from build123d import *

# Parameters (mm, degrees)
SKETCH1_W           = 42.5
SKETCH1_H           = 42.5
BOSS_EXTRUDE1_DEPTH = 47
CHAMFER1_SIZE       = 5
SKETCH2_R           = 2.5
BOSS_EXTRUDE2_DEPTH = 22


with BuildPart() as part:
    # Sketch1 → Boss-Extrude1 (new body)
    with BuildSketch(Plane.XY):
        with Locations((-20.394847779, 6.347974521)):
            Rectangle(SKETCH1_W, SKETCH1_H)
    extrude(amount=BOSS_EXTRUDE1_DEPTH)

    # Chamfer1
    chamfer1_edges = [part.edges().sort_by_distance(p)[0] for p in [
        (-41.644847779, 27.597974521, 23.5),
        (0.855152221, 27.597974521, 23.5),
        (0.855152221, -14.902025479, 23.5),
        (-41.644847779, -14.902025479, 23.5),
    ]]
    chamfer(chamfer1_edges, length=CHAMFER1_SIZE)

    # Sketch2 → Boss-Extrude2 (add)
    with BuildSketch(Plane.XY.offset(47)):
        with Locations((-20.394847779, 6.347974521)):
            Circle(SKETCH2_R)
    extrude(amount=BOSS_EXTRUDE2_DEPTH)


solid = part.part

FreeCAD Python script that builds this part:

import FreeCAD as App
import Part
import Sketcher
from FreeCAD import Vector


def edges_at(feature, points):
    """Names of the edges that pass closest to the given points."""
    edges = feature.Shape.Edges
    near = lambda p: min(range(len(edges)), key=lambda i: edges[i].distToShape(Part.Vertex(*p))[0])
    return sorted({f"Edge{near(p) + 1}" for p in points})


def add_polygon(sketch, points):
    """Adds a closed chain of lines whose ends are joined by coincident constraints."""
    first, n = sketch.GeometryCount, len(points)
    for a, b in zip(points, points[1:] + points[:1]):
        sketch.addGeometry(Part.LineSegment(App.Vector(*a, 0), App.Vector(*b, 0)), False)
    for i in range(n):
        sketch.addConstraint(Sketcher.Constraint("Coincident", first + i, 2, first + (i + 1) % n, 1))

doc = App.newDocument("Part")
params = doc.addObject("Spreadsheet::Sheet", "Params")
for row, (alias, value) in enumerate([
    ("sketch1_width", "42.5 mm"),
    ("pad1_length", "47 mm"),
    ("chamfer_size", "5 mm"),
    ("sketch2_diameter", "5 mm"),
    ("pad2_length", "22 mm"),
], start=1):
    params.set(f"A{row}", alias)
    params.set(f"B{row}", "=" + value)
    params.setAlias(f"B{row}", alias)

body = doc.addObject("PartDesign::Body", "Body")

sketch1 = doc.addObject("Sketcher::SketchObject", "Sketch")
body.addObject(sketch1)
sketch1.AttachmentSupport = (doc.XY_Plane, [""])
sketch1.MapMode = "FlatFace"
add_polygon(sketch1, [(-42, 28), (-42, -15), (1, -15), (1, 28)])
sketch1.addConstraint(Sketcher.Constraint("Vertical", 0))
sketch1.addConstraint(Sketcher.Constraint("Horizontal", 1))
sketch1.addConstraint(Sketcher.Constraint("Vertical", 2))
sketch1.addConstraint(Sketcher.Constraint("Horizontal", 3))
sketch1.addConstraint(Sketcher.Constraint("Equal", 3, 0))
sketch1.addConstraint(Sketcher.Constraint("DistanceX", 1, 1, 1, 2, 42.5))
sketch1.addConstraint(Sketcher.Constraint("DistanceX", 0, 2, -1, 1, 41.644848))
sketch1.addConstraint(Sketcher.Constraint("DistanceY", 0, 2, -1, 1, 14.902025))
sketch1.setExpression("Constraints[9]", "Params.sketch1_width")
pad1 = doc.addObject("PartDesign::Pad", "Pad")
body.addObject(pad1)
pad1.Profile = sketch1
pad1.setExpression("Length", "Params.pad1_length")
doc.recompute()

chamfer = doc.addObject("PartDesign::Chamfer", "Chamfer")
body.addObject(chamfer)
chamfer.Base = (pad1, edges_at(pad1, [
    (-41.645, 27.598, 23.5),
    (0.855, 27.598, 23.5),
    (0.855, -14.902, 23.5),
    (-41.645, -14.902, 23.5),
]))
chamfer.setExpression("Size", "Params.chamfer_size")

sketch2 = doc.addObject("Sketcher::SketchObject", "Sketch001")
body.addObject(sketch2)
sketch2.AttachmentSupport = (doc.XY_Plane, [""])
sketch2.MapMode = "FlatFace"
sketch2.AttachmentOffset = App.Placement(Vector(0, 0, 47), App.Rotation())
sketch2.addGeometry(Part.Circle(Vector(-20.4, 6.3, 0), Vector(0, 0, 1), 2.5), False)
sketch2.addConstraint(Sketcher.Constraint("Diameter", 0, 5.0))
sketch2.addConstraint(Sketcher.Constraint("DistanceX", 0, 3, -1, 1, 20.394848))
sketch2.addConstraint(Sketcher.Constraint("DistanceY", -1, 1, 0, 3, 6.347975))
sketch2.setExpression("Constraints[0]", "Params.sketch2_diameter")
pad2 = doc.addObject("PartDesign::Pad", "Pad001")
body.addObject(pad2)
pad2.Profile = sketch2
pad2.setExpression("Length", "Params.pad2_length")

doc.recompute()
